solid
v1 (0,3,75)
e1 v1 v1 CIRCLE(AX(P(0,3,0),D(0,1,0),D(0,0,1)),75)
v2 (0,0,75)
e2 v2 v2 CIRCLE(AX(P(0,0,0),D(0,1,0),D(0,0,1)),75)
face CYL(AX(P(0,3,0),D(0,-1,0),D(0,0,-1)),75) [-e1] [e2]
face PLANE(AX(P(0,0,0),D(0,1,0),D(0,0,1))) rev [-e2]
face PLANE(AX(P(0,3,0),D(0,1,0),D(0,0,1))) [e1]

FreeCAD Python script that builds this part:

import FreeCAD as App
import Part
import Sketcher
from FreeCAD import Vector

doc = App.newDocument("Part")
body = doc.addObject("PartDesign::Body", "Body")

# Sketch on XZ plane
sketch1 = body.newObject("Sketcher::SketchObject", "Sketch")
sketch1.AttachmentSupport = (doc.getObject("XZ_Plane"), [""])
sketch1.MapMode = "FlatFace"
sketch1.addGeometry(Part.Circle(Vector(0, 0, 0), Vector(0, 0, 1), 75), False)
sketch1.addConstraint([
    Sketcher.Constraint("Coincident", 0, 3, -1, 1),
    Sketcher.Constraint("Diameter", 0, 150.0),
])
pad1 = body.newObject("PartDesign::Pad", "Pad")
pad1.Profile = sketch1
pad1.Length = 3
pad1.Reversed = True

doc.recompute()
